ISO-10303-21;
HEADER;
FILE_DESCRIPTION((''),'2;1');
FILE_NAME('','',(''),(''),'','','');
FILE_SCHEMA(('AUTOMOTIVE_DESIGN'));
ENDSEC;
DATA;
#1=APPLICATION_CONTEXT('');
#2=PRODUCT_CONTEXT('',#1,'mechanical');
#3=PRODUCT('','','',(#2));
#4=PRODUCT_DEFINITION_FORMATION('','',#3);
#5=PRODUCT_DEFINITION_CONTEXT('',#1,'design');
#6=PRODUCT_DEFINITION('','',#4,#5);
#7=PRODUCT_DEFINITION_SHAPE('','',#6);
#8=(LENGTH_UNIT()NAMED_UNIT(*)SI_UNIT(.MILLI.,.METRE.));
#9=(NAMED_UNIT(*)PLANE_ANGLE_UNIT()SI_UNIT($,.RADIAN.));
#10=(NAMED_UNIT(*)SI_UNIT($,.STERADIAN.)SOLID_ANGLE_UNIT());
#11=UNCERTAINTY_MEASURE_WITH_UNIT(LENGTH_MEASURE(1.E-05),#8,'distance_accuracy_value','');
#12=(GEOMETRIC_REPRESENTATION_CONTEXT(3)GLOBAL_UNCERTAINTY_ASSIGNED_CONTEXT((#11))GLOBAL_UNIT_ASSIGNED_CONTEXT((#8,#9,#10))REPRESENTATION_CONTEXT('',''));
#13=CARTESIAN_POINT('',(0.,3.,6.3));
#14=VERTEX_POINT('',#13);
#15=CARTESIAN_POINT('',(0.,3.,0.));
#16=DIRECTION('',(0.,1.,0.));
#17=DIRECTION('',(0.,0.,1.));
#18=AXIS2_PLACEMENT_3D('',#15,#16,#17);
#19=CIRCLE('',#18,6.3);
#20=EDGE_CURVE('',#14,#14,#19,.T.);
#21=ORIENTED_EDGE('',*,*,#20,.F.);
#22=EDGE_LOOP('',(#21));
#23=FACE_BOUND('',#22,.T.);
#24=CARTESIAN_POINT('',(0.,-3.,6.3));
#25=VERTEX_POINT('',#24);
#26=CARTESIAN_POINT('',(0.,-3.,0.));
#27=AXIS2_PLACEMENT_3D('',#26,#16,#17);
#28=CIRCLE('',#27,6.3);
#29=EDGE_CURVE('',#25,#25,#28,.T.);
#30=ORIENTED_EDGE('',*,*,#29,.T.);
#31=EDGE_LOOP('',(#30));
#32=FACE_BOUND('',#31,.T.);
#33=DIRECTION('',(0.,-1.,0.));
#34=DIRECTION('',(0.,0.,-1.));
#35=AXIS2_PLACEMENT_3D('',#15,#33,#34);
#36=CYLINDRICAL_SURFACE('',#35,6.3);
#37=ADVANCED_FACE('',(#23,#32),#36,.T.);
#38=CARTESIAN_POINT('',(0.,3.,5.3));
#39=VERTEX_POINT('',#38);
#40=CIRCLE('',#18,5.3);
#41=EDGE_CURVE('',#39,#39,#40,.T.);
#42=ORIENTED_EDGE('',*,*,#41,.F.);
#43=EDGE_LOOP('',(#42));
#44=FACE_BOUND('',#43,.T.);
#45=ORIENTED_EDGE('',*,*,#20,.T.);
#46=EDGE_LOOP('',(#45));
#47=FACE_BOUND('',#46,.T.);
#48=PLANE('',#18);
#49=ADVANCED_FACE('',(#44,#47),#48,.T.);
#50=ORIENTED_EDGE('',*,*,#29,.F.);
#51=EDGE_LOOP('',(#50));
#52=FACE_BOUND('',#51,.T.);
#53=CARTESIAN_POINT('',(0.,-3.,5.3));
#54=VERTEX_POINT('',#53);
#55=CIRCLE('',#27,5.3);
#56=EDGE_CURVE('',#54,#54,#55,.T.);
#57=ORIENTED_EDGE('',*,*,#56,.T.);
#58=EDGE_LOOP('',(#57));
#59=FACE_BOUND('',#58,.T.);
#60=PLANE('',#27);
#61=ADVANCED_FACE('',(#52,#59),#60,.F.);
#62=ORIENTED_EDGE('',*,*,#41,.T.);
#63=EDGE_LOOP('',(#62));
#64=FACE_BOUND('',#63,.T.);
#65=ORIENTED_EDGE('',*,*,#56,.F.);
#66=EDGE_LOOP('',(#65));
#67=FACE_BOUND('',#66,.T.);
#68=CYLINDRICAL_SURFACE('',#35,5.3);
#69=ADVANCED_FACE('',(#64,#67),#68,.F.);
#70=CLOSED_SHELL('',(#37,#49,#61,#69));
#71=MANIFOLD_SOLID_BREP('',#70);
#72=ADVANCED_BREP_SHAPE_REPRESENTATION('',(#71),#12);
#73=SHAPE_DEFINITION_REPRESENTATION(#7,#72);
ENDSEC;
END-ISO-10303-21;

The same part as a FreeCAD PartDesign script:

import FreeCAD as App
import Part
import Sketcher
Q = App.Units.Quantity

doc = App.newDocument("Part")
params = doc.addObject("Spreadsheet::Sheet", "Params")
for row, (alias, value) in enumerate([
    ("sketch1_diameter", "12.6 mm"),
    ("sketch1_diameter2", "10.6 mm"),
    ("pad1_length", "6 mm"),
], start=1):
    params.set(f"A{row}", alias)
    params.set(f"B{row}", "=" + value)
    params.setAlias(f"B{row}", alias)

body = doc.addObject("PartDesign::Body", "Body")

# Sketch on XZ plane
sketch1 = body.newObject("Sketcher::SketchObject", "Sketch")
sketch1.AttachmentSupport = (doc.getObject("XZ_Plane"), [""])
sketch1.MapMode = "FlatFace"
sketch1.addGeometry(Part.Circle(App.Vector(0, 0, 0), App.Vector(0, 0, 1), 6), False)
sketch1.addGeometry(Part.Circle(App.Vector(0, 0, 0), App.Vector(0, 0, 1), 5), False)
sketch1.addConstraint(Sketcher.Constraint("Coincident", 0, 3, -1, 1))
sketch1.addConstraint(Sketcher.Constraint("Coincident", 1, 3, -1, 1))
sketch1.addConstraint(Sketcher.Constraint("Diameter", 0, Q("12.6 mm")))
sketch1.addConstraint(Sketcher.Constraint("Diameter", 1, Q("10.6 mm")))
sketch1.setExpression("Constraints[2]", "Params.sketch1_diameter")
sketch1.setExpression("Constraints[3]", "Params.sketch1_diameter2")
pad1 = body.newObject("PartDesign::Pad", "Pad")
pad1.Profile = sketch1
pad1.setExpression("Length", "Params.pad1_length")
pad1.Midplane = True

doc.recompute()
